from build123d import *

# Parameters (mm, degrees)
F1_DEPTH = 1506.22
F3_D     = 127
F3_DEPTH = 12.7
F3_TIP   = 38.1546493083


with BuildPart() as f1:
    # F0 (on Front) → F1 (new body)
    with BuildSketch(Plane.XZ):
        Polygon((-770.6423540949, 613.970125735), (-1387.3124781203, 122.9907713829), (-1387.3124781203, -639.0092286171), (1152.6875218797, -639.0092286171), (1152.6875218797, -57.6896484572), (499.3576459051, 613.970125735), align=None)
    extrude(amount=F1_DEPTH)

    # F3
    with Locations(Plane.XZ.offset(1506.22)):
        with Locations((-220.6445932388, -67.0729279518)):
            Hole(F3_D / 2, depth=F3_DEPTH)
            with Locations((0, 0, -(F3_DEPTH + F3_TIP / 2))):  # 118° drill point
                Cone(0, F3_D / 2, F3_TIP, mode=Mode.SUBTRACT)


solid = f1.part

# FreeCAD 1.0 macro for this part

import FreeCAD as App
import Part
import Sketcher

V = App.Vector
Q = App.Units.Quantity

doc = App.newDocument("Part")
body = doc.addObject("PartDesign::Body", "Body")

# Sketch on XZ plane
sketch1 = body.newObject("Sketcher::SketchObject", "Sketch")
sketch1.AttachmentSupport = (doc.getObject("XZ_Plane"), [""])
sketch1.MapMode = "FlatFace"
sketch1.addGeometry(Part.LineSegment(V(-771, 614, 0), V(-1387, 123, 0)), False)
sketch1.addGeometry(Part.LineSegment(V(-1387, 123, 0), V(-1387, -639, 0)), False)
sketch1.addGeometry(Part.LineSegment(V(-1387, -639, 0), V(1153, -639, 0)), False)
sketch1.addGeometry(Part.LineSegment(V(1153, -639, 0), V(1153, -58, 0)), False)
sketch1.addGeometry(Part.LineSegment(V(1153, -58, 0), V(499, 614, 0)), False)
sketch1.addGeometry(Part.LineSegment(V(499, 614, 0), V(-771, 614, 0)), False)
sketch1.addConstraint(Sketcher.Constraint("Coincident", 0, 2, 1, 1))
sketch1.addConstraint(Sketcher.Constraint("Coincident", 1, 2, 2, 1))
sketch1.addConstraint(Sketcher.Constraint("Coincident", 2, 2, 3, 1))
sketch1.addConstraint(Sketcher.Constraint("Coincident", 3, 2, 4, 1))
sketch1.addConstraint(Sketcher.Constraint("Coincident", 4, 2, 5, 1))
sketch1.addConstraint(Sketcher.Constraint("Coincident", 5, 2, 0, 1))
sketch1.addConstraint(Sketcher.Constraint("Vertical", 1))
sketch1.addConstraint(Sketcher.Constraint("Horizontal", 2))
sketch1.addConstraint(Sketcher.Constraint("Vertical", 3))
sketch1.addConstraint(Sketcher.Constraint("Horizontal", 5))
sketch1.addConstraint(Sketcher.Constraint("DistanceX", 2, 1, 2, 2, Q("100 in")))
sketch1.addConstraint(Sketcher.Constraint("DistanceX", 5, 2, 5, 1, Q("50 in")))
sketch1.addConstraint(Sketcher.Constraint("DistanceY", 1, 2, 1, 1, Q("30 in")))
sketch1.addConstraint(Sketcher.Constraint("DistanceY", 3, 1, 3, 2, 581.31958))
sketch1.addConstraint(Sketcher.Constraint("DistanceX", 0, 2, -1, 1, 1387.312478))
sketch1.addConstraint(Sketcher.Constraint("DistanceY", -1, 1, 0, 2, 122.990771))
sketch1.addConstraint(Sketcher.Constraint("Distance", 0, 788.252985))
sketch1.addConstraint(Sketcher.Constraint("Distance", 4, 936.998815))
pad1 = body.newObject("PartDesign::Pad", "Pad")
pad1.Profile = sketch1
pad1.Length = Q("59.3 in")

# Sketch on XZ plane
sketch2 = body.newObject("Sketcher::SketchObject", "Sketch001")
sketch2.AttachmentSupport = (doc.getObject("XZ_Plane"), [""])
sketch2.MapMode = "FlatFace"
sketch2.AttachmentOffset = App.Placement(V(0, 0, 59.3 * 25.4), App.Rotation())
sketch2.addGeometry(Part.Circle(V(-221, -67, 0), V(0, 0, 1), 64), False)
sketch2.addConstraint(Sketcher.Constraint("Diameter", 0, Q("5 in")))
sketch2.addConstraint(Sketcher.Constraint("DistanceX", 0, 3, -1, 1, 220.644593))
sketch2.addConstraint(Sketcher.Constraint("DistanceY", 0, 3, -1, 1, 67.072928))
doc.recompute()
hole = body.newObject("PartDesign::Hole", "Hole")
hole.Profile = sketch2
hole.ThreadType = "None"
hole.Diameter = Q("5 in")
hole.DepthType = "Dimension"
hole.Depth = Q("0.5 in")
hole.DrillPoint = "Angled"
hole.DrillPointAngle = 118

doc.recompute()
